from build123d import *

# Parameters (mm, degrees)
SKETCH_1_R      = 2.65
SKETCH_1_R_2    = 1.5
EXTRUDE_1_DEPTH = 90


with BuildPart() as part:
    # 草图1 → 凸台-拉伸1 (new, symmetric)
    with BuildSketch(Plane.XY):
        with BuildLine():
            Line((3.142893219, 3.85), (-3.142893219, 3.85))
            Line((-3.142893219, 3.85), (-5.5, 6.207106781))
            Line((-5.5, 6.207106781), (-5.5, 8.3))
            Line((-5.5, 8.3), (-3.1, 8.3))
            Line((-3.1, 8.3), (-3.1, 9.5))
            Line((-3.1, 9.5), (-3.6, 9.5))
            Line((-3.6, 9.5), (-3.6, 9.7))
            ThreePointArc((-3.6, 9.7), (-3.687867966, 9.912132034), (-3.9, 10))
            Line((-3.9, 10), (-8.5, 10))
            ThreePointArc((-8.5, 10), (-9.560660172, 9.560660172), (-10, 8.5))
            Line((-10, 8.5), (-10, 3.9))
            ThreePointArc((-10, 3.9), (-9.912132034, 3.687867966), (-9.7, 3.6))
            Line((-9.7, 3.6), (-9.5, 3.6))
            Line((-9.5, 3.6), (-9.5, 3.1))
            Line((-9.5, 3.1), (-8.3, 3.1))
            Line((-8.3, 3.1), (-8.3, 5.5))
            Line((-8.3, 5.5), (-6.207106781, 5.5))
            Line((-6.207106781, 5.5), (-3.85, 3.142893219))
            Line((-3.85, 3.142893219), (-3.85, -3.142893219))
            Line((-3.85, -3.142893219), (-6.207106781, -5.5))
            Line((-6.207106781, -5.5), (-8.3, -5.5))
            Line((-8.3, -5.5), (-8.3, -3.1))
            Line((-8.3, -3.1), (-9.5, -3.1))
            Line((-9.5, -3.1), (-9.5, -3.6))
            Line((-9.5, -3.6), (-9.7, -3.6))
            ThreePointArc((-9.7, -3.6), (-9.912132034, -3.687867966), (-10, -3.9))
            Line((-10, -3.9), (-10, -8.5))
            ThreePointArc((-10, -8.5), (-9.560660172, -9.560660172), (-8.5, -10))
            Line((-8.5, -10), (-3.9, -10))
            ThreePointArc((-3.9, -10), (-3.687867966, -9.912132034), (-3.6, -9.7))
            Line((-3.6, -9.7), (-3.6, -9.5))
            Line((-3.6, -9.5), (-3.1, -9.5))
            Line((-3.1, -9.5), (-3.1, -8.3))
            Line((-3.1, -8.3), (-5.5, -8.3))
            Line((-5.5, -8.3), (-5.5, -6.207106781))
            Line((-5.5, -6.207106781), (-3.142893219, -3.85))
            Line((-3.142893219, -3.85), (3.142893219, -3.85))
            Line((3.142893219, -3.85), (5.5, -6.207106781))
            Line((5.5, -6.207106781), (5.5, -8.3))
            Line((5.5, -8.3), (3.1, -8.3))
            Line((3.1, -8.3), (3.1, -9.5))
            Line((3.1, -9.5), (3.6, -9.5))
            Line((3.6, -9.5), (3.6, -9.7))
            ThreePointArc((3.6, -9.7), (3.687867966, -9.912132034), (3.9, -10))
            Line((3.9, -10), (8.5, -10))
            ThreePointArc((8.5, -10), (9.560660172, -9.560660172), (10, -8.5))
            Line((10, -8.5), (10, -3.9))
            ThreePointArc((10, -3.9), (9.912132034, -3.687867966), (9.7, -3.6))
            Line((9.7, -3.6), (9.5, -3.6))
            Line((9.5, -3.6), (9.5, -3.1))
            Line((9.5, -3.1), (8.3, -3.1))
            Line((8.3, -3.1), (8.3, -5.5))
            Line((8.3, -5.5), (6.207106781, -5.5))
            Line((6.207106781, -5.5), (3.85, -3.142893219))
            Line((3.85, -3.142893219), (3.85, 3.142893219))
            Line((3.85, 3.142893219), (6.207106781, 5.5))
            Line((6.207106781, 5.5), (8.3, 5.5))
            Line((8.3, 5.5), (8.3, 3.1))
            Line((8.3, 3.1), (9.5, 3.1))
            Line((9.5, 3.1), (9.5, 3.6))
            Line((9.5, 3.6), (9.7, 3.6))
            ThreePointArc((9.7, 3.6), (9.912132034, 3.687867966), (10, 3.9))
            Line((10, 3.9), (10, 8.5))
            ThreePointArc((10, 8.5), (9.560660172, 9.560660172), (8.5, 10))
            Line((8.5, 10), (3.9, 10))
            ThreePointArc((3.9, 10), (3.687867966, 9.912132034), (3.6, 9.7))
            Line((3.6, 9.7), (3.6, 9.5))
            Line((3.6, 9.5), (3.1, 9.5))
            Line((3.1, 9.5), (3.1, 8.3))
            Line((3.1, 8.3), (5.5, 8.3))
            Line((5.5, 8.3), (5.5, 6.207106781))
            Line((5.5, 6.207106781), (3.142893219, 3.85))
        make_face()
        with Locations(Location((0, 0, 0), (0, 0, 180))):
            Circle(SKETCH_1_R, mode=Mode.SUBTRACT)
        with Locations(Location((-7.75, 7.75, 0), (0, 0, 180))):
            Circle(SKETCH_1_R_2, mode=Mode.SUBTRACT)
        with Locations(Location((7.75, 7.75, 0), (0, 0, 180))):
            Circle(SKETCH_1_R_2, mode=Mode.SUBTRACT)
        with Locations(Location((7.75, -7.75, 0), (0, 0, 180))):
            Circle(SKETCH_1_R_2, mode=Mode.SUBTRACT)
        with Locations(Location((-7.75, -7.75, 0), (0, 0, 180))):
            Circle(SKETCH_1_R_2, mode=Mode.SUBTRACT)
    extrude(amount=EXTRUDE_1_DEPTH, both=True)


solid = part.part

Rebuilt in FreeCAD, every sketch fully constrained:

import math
import FreeCAD as App
import Part
import Sketcher

doc = App.newDocument("Part")
body = doc.addObject("PartDesign::Body", "Body")

sketch1 = body.newObject("Sketcher::SketchObject", "Sketch")
sketch1.AttachmentSupport = (doc.getObject("XY_Plane"), [""])
sketch1.MapMode = "FlatFace"
sketch1.addGeometry(Part.LineSegment(App.Vector(3.142893, 3.85, 0), App.Vector(-3.142893, 3.85, 0)), False)
sketch1.addGeometry(Part.LineSegment(App.Vector(-3.142893, 3.85, 0), App.Vector(-5.5, 6.207107, 0)), False)
sketch1.addGeometry(Part.LineSegment(App.Vector(-5.5, 6.207107, 0), App.Vector(-5.5, 8.3, 0)), False)
sketch1.addGeometry(Part.LineSegment(App.Vector(-5.5, 8.3, 0), App.Vector(-3.1, 8.3, 0)), False)
sketch1.addGeometry(Part.LineSegment(App.Vector(-3.1, 8.3, 0), App.Vector(-3.1, 9.5, 0)), False)
sketch1.addGeometry(Part.LineSegment(App.Vector(-3.1, 9.5, 0), App.Vector(-3.6, 9.5, 0)), False)
sketch1.addGeometry(Part.LineSegment(App.Vector(-3.6, 9.5, 0), App.Vector(-3.6, 9.7, 0)), False)
sketch1.addGeometry(Part.ArcOfCircle(Part.Circle(App.Vector(-3.9, 9.7, 0), App.Vector(0, 0, 1), 0.3), math.radians(0), math.radians(90)), False)
sketch1.addGeometry(Part.LineSegment(App.Vector(-3.9, 10, 0), App.Vector(-8.5, 10, 0)), False)
sketch1.addGeometry(Part.ArcOfCircle(Part.Circle(App.Vector(-8.5, 8.5, 0), App.Vector(0, 0, 1), 1.5), math.radians(90), math.radians(180)), False)
sketch1.addGeometry(Part.LineSegment(App.Vector(-10, 8.5, 0), App.Vector(-10, 3.9, 0)), False)
sketch1.addGeometry(Part.ArcOfCircle(Part.Circle(App.Vector(-9.7, 3.9, 0), App.Vector(0, 0, 1), 0.3), math.radians(-180), math.radians(-90)), False)
sketch1.addGeometry(Part.LineSegment(App.Vector(-9.7, 3.6, 0), App.Vector(-9.5, 3.6, 0)), False)
sketch1.addGeometry(Part.LineSegment(App.Vector(-9.5, 3.6, 0), App.Vector(-9.5, 3.1, 0)), False)
sketch1.addGeometry(Part.LineSegment(App.Vector(-9.5, 3.1, 0), App.Vector(-8.3, 3.1, 0)), False)
sketch1.addGeometry(Part.LineSegment(App.Vector(-8.3, 3.1, 0), App.Vector(-8.3, 5.5, 0)), False)
sketch1.addGeometry(Part.LineSegment(App.Vector(-8.3, 5.5, 0), App.Vector(-6.207107, 5.5, 0)), False)
sketch1.addGeometry(Part.LineSegment(App.Vector(-6.207107, 5.5, 0), App.Vector(-3.85, 3.142893, 0)), False)
sketch1.addGeometry(Part.LineSegment(App.Vector(-3.85, 3.142893, 0), App.Vector(-3.85, -3.142893, 0)), False)
sketch1.addGeometry(Part.LineSegment(App.Vector(-3.85, -3.142893, 0), App.Vector(-6.207107, -5.5, 0)), False)
sketch1.addGeometry(Part.LineSegment(App.Vector(-6.207107, -5.5, 0), App.Vector(-8.3, -5.5, 0)), False)
sketch1.addGeometry(Part.LineSegment(App.Vector(-8.3, -5.5, 0), App.Vector(-8.3, -3.1, 0)), False)
sketch1.addGeometry(Part.LineSegment(App.Vector(-8.3, -3.1, 0), App.Vector(-9.5, -3.1, 0)), False)
sketch1.addGeometry(Part.LineSegment(App.Vector(-9.5, -3.1, 0), App.Vector(-9.5, -3.6, 0)), False)
sketch1.addGeometry(Part.LineSegment(App.Vector(-9.5, -3.6, 0), App.Vector(-9.7, -3.6, 0)), False)
sketch1.addGeometry(Part.ArcOfCircle(Part.Circle(App.Vector(-9.7, -3.9, 0), App.Vector(0, 0, 1), 0.3), math.radians(90), math.radians(180)), False)
sketch1.addGeometry(Part.LineSegment(App.Vector(-10, -3.9, 0), App.Vector(-10, -8.5, 0)), False)
sketch1.addGeometry(Part.ArcOfCircle(Part.Circle(App.Vector(-8.5, -8.5, 0), App.Vector(0, 0, 1), 1.5), math.radians(180), math.radians(270)), False)
sketch1.addGeometry(Part.LineSegment(App.Vector(-8.5, -10, 0), App.Vector(-3.9, -10, 0)), False)
sketch1.addGeometry(Part.ArcOfCircle(Part.Circle(App.Vector(-3.9, -9.7, 0), App.Vector(0, 0, 1), 0.3), math.radians(-90), math.radians(0)), False)
sketch1.addGeometry(Part.LineSegment(App.Vector(-3.6, -9.7, 0), App.Vector(-3.6, -9.5, 0)), False)
sketch1.addGeometry(Part.LineSegment(App.Vector(-3.6, -9.5, 0), App.Vector(-3.1, -9.5, 0)), False)
sketch1.addGeometry(Part.LineSegment(App.Vector(-3.1, -9.5, 0), App.Vector(-3.1, -8.3, 0)), False)
sketch1.addGeometry(Part.LineSegment(App.Vector(-3.1, -8.3, 0), App.Vector(-5.5, -8.3, 0)), False)
sketch1.addGeometry(Part.LineSegment(App.Vector(-5.5, -8.3, 0), App.Vector(-5.5, -6.207107, 0)), False)
sketch1.addGeometry(Part.LineSegment(App.Vector(-5.5, -6.207107, 0), App.Vector(-3.142893, -3.85, 0)), False)
sketch1.addGeometry(Part.LineSegment(App.Vector(-3.142893, -3.85, 0), App.Vector(3.142893, -3.85, 0)), False)
sketch1.addGeometry(Part.LineSegment(App.Vector(3.142893, -3.85, 0), App.Vector(5.5, -6.207107, 0)), False)
sketch1.addGeometry(Part.LineSegment(App.Vector(5.5, -6.207107, 0), App.Vector(5.5, -8.3, 0)), False)
sketch1.addGeometry(Part.LineSegment(App.Vector(5.5, -8.3, 0), App.Vector(3.1, -8.3, 0)), False)
sketch1.addGeometry(Part.LineSegment(App.Vector(3.1, -8.3, 0), App.Vector(3.1, -9.5, 0)), False)
sketch1.addGeometry(Part.LineSegment(App.Vector(3.1, -9.5, 0), App.Vector(3.6, -9.5, 0)), False)
sketch1.addGeometry(Part.LineSegment(App.Vector(3.6, -9.5, 0), App.Vector(3.6, -9.7, 0)), False)
sketch1.addGeometry(Part.ArcOfCircle(Part.Circle(App.Vector(3.9, -9.7, 0), App.Vector(0, 0, 1), 0.3), math.radians(-180), math.radians(-90)), False)
sketch1.addGeometry(Part.LineSegment(App.Vector(3.9, -10, 0), App.Vector(8.5, -10, 0)), False)
sketch1.addGeometry(Part.ArcOfCircle(Part.Circle(App.Vector(8.5, -8.5, 0), App.Vector(0, 0, 1), 1.5), math.radians(-90), math.radians(0)), False)
sketch1.addGeometry(Part.LineSegment(App.Vector(10, -8.5, 0), App.Vector(10, -3.9, 0)), False)
sketch1.addGeometry(Part.ArcOfCircle(Part.Circle(App.Vector(9.7, -3.9, 0), App.Vector(0, 0, 1), 0.3), math.radians(0), math.radians(90)), False)
sketch1.addGeometry(Part.LineSegment(App.Vector(9.7, -3.6, 0), App.Vector(9.5, -3.6, 0)), False)
sketch1.addGeometry(Part.LineSegment(App.Vector(9.5, -3.6, 0), App.Vector(9.5, -3.1, 0)), False)
sketch1.addGeometry(Part.LineSegment(App.Vector(9.5, -3.1, 0), App.Vector(8.3, -3.1, 0)), False)
sketch1.addGeometry(Part.LineSegment(App.Vector(8.3, -3.1, 0), App.Vector(8.3, -5.5, 0)), False)
sketch1.addGeometry(Part.LineSegment(App.Vector(8.3, -5.5, 0), App.Vector(6.207107, -5.5, 0)), False)
sketch1.addGeometry(Part.LineSegment(App.Vector(6.207107, -5.5, 0), App.Vector(3.85, -3.142893, 0)), False)
sketch1.addGeometry(Part.LineSegment(App.Vector(3.85, -3.142893, 0), App.Vector(3.85, 3.142893, 0)), False)
sketch1.addGeometry(Part.LineSegment(App.Vector(3.85, 3.142893, 0), App.Vector(6.207107, 5.5, 0)), False)
sketch1.addGeometry(Part.LineSegment(App.Vector(6.207107, 5.5, 0), App.Vector(8.3, 5.5, 0)), False)
sketch1.addGeometry(Part.LineSegment(App.Vector(8.3, 5.5, 0), App.Vector(8.3, 3.1, 0)), False)
sketch1.addGeometry(Part.LineSegment(App.Vector(8.3, 3.1, 0), App.Vector(9.5, 3.1, 0)), False)
sketch1.addGeometry(Part.LineSegment(App.Vector(9.5, 3.1, 0), App.Vector(9.5, 3.6, 0)), False)
sketch1.addGeometry(Part.LineSegment(App.Vector(9.5, 3.6, 0), App.Vector(9.7, 3.6, 0)), False)
sketch1.addGeometry(Part.ArcOfCircle(Part.Circle(App.Vector(9.7, 3.9, 0), App.Vector(0, 0, 1), 0.3), math.radians(-90), math.radians(0)), False)
sketch1.addGeometry(Part.LineSegment(App.Vector(10, 3.9, 0), App.Vector(10, 8.5, 0)), False)
sketch1.addGeometry(Part.ArcOfCircle(Part.Circle(App.Vector(8.5, 8.5, 0), App.Vector(0, 0, 1), 1.5), math.radians(0), math.radians(90)), False)
sketch1.addGeometry(Part.LineSegment(App.Vector(8.5, 10, 0), App.Vector(3.9, 10, 0)), False)
sketch1.addGeometry(Part.ArcOfCircle(Part.Circle(App.Vector(3.9, 9.7, 0), App.Vector(0, 0, 1), 0.3), math.radians(90), math.radians(180)), False)
sketch1.addGeometry(Part.LineSegment(App.Vector(3.6, 9.7, 0), App.Vector(3.6, 9.5, 0)), False)
sketch1.addGeometry(Part.LineSegment(App.Vector(3.6, 9.5, 0), App.Vector(3.1, 9.5, 0)), False)
sketch1.addGeometry(Part.LineSegment(App.Vector(3.1, 9.5, 0), App.Vector(3.1, 8.3, 0)), False)
sketch1.addGeometry(Part.LineSegment(App.Vector(3.1, 8.3, 0), App.Vector(5.5, 8.3, 0)), False)
sketch1.addGeometry(Part.LineSegment(App.Vector(5.5, 8.3, 0), App.Vector(5.5, 6.207107, 0)), False)
sketch1.addGeometry(Part.LineSegment(App.Vector(5.5, 6.207107, 0), App.Vector(3.142893, 3.85, 0)), False)
sketch1.addGeometry(Part.Circle(App.Vector(-7.75, -7.75, 0), App.Vector(0, 0, 1), 1.5), False)
sketch1.addGeometry(Part.Circle(App.Vector(7.75, -7.75, 0), App.Vector(0, 0, 1), 1.5), False)
sketch1.addGeometry(Part.Circle(App.Vector(-7.75, 7.75, 0), App.Vector(0, 0, 1), 1.5), False)
sketch1.addGeometry(Part.Circle(App.Vector(0, 0, 0), App.Vector(0, 0, 1), 2.65), False)
sketch1.addGeometry(Part.Circle(App.Vector(7.75, 7.75, 0), App.Vector(0, 0, 1), 1.5), False)
sketch1.addConstraint(Sketcher.Constraint("Coincident", 0, 2, 1, 1))
sketch1.addConstraint(Sketcher.Constraint("Coincident", 1, 2, 2, 1))
sketch1.addConstraint(Sketcher.Constraint("Coincident", 2, 2, 3, 1))
sketch1.addConstraint(Sketcher.Constraint("Coincident", 3, 2, 4, 1))
sketch1.addConstraint(Sketcher.Constraint("Coincident", 4, 2, 5, 1))
sketch1.addConstraint(Sketcher.Constraint("Coincident", 5, 2, 6, 1))
sketch1.addConstraint(Sketcher.Constraint("Tangent", 6, 2, 7, 1))
sketch1.addConstraint(Sketcher.Constraint("Tangent", 7, 2, 8, 1))
sketch1.addConstraint(Sketcher.Constraint("Tangent", 8, 2, 9, 1))
sketch1.addConstraint(Sketcher.Constraint("Tangent", 9, 2, 10, 1))
sketch1.addConstraint(Sketcher.Constraint("Tangent", 10, 2, 11, 1))
sketch1.addConstraint(Sketcher.Constraint("Tangent", 11, 2, 12, 1))
sketch1.addConstraint(Sketcher.Constraint("Coincident", 12, 2, 13, 1))
sketch1.addConstraint(Sketcher.Constraint("Coincident", 13, 2, 14, 1))
sketch1.addConstraint(Sketcher.Constraint("Coincident", 14, 2, 15, 1))
sketch1.addConstraint(Sketcher.Constraint("Coincident", 15, 2, 16, 1))
sketch1.addConstraint(Sketcher.Constraint("Coincident", 16, 2, 17, 1))
sketch1.addConstraint(Sketcher.Constraint("Coincident", 17, 2, 18, 1))
sketch1.addConstraint(Sketcher.Constraint("Coincident", 18, 2, 19, 1))
sketch1.addConstraint(Sketcher.Constraint("Coincident", 19, 2, 20, 1))
sketch1.addConstraint(Sketcher.Constraint("Coincident", 20, 2, 21, 1))
sketch1.addConstraint(Sketcher.Constraint("Coincident", 21, 2, 22, 1))
sketch1.addConstraint(Sketcher.Constraint("Coincident", 22, 2, 23, 1))
sketch1.addConstraint(Sketcher.Constraint("Coincident", 23, 2, 24, 1))
sketch1.addConstraint(Sketcher.Constraint("Tangent", 24, 2, 25, 1))
sketch1.addConstraint(Sketcher.Constraint("Tangent", 25, 2, 26, 1))
sketch1.addConstraint(Sketcher.Constraint("Tangent", 26, 2, 27, 1))
sketch1.addConstraint(Sketcher.Constraint("Tangent", 27, 2, 28, 1))
sketch1.addConstraint(Sketcher.Constraint("Tangent", 28, 2, 29, 1))
sketch1.addConstraint(Sketcher.Constraint("Tangent", 29, 2, 30, 1))
sketch1.addConstraint(Sketcher.Constraint("Coincident", 30, 2, 31, 1))
sketch1.addConstraint(Sketcher.Constraint("Coincident", 31, 2, 32, 1))
sketch1.addConstraint(Sketcher.Constraint("Coincident", 32, 2, 33, 1))
sketch1.addConstraint(Sketcher.Constraint("Coincident", 33, 2, 34, 1))
sketch1.addConstraint(Sketcher.Constraint("Coincident", 34, 2, 35, 1))
sketch1.addConstraint(Sketcher.Constraint("Coincident", 35, 2, 36, 1))
sketch1.addConstraint(Sketcher.Constraint("Coincident", 36, 2, 37, 1))
sketch1.addConstraint(Sketcher.Constraint("Coincident", 37, 2, 38, 1))
sketch1.addConstraint(Sketcher.Constraint("Coincident", 38, 2, 39, 1))
sketch1.addConstraint(Sketcher.Constraint("Coincident", 39, 2, 40, 1))
sketch1.addConstraint(Sketcher.Constraint("Coincident", 40, 2, 41, 1))
sketch1.addConstraint(Sketcher.Constraint("Coincident", 41, 2, 42, 1))
sketch1.addConstraint(Sketcher.Constraint("Tangent", 42, 2, 43, 1))
sketch1.addConstraint(Sketcher.Constraint("Tangent", 43, 2, 44, 1))
sketch1.addConstraint(Sketcher.Constraint("Tangent", 44, 2, 45, 1))
sketch1.addConstraint(Sketcher.Constraint("Tangent", 45, 2, 46, 1))
sketch1.addConstraint(Sketcher.Constraint("Tangent", 46, 2, 47, 1))
sketch1.addConstraint(Sketcher.Constraint("Tangent", 47, 2, 48, 1))
sketch1.addConstraint(Sketcher.Constraint("Coincident", 48, 2, 49, 1))
sketch1.addConstraint(Sketcher.Constraint("Coincident", 49, 2, 50, 1))
sketch1.addConstraint(Sketcher.Constraint("Coincident", 50, 2, 51, 1))
sketch1.addConstraint(Sketcher.Constraint("Coincident", 51, 2, 52, 1))
sketch1.addConstraint(Sketcher.Constraint("Coincident", 52, 2, 53, 1))
sketch1.addConstraint(Sketcher.Constraint("Coincident", 53, 2, 54, 1))
sketch1.addConstraint(Sketcher.Constraint("Coincident", 54, 2, 55, 1))
sketch1.addConstraint(Sketcher.Constraint("Coincident", 55, 2, 56, 1))
sketch1.addConstraint(Sketcher.Constraint("Coincident", 56, 2, 57, 1))
sketch1.addConstraint(Sketcher.Constraint("Coincident", 57, 2, 58, 1))
sketch1.addConstraint(Sketcher.Constraint("Coincident", 58, 2, 59, 1))
sketch1.addConstraint(Sketcher.Constraint("Coincident", 59, 2, 60, 1))
sketch1.addConstraint(Sketcher.Constraint("Tangent", 60, 2, 61, 1))
sketch1.addConstraint(Sketcher.Constraint("Tangent", 61, 2, 62, 1))
sketch1.addConstraint(Sketcher.Constraint("Tangent", 62, 2, 63, 1))
sketch1.addConstraint(Sketcher.Constraint("Tangent", 63, 2, 64, 1))
sketch1.addConstraint(Sketcher.Constraint("Tangent", 64, 2, 65, 1))
sketch1.addConstraint(Sketcher.Constraint("Tangent", 65, 2, 66, 1))
sketch1.addConstraint(Sketcher.Constraint("Coincident", 66, 2, 67, 1))
sketch1.addConstraint(Sketcher.Constraint("Coincident", 67, 2, 68, 1))
sketch1.addConstraint(Sketcher.Constraint("Coincident", 68, 2, 69, 1))
sketch1.addConstraint(Sketcher.Constraint("Coincident", 69, 2, 70, 1))
sketch1.addConstraint(Sketcher.Constraint("Coincident", 70, 2, 71, 1))
sketch1.addConstraint(Sketcher.Constraint("Coincident", 71, 2, 0, 1))
sketch1.addConstraint(Sketcher.Constraint("Horizontal", 0))
sketch1.addConstraint(Sketcher.Constraint("Vertical", 2))
sketch1.addConstraint(Sketcher.Constraint("Horizontal", 3))
sketch1.addConstraint(Sketcher.Constraint("Vertical", 4))
sketch1.addConstraint(Sketcher.Constraint("Horizontal", 5))
sketch1.addConstraint(Sketcher.Constraint("Vertical", 6))
sketch1.addConstraint(Sketcher.Constraint("Horizontal", 8))
sketch1.addConstraint(Sketcher.Constraint("Vertical", 10))
sketch1.addConstraint(Sketcher.Constraint("Horizontal", 12))
sketch1.addConstraint(Sketcher.Constraint("Vertical", 13))
sketch1.addConstraint(Sketcher.Constraint("Horizontal", 14))
sketch1.addConstraint(Sketcher.Constraint("Vertical", 15))
sketch1.addConstraint(Sketcher.Constraint("Horizontal", 16))
sketch1.addConstraint(Sketcher.Constraint("Vertical", 18))
sketch1.addConstraint(Sketcher.Constraint("Horizontal", 20))
sketch1.addConstraint(Sketcher.Constraint("Vertical", 21))
sketch1.addConstraint(Sketcher.Constraint("Horizontal", 22))
sketch1.addConstraint(Sketcher.Constraint("Vertical", 23))
sketch1.addConstraint(Sketcher.Constraint("Horizontal", 24))
sketch1.addConstraint(Sketcher.Constraint("Vertical", 26))
sketch1.addConstraint(Sketcher.Constraint("Horizontal", 28))
sketch1.addConstraint(Sketcher.Constraint("Vertical", 30))
sketch1.addConstraint(Sketcher.Constraint("Horizontal", 31))
sketch1.addConstraint(Sketcher.Constraint("Vertical", 32))
sketch1.addConstraint(Sketcher.Constraint("Horizontal", 33))
sketch1.addConstraint(Sketcher.Constraint("Vertical", 34))
sketch1.addConstraint(Sketcher.Constraint("Horizontal", 36))
sketch1.addConstraint(Sketcher.Constraint("Vertical", 38))
sketch1.addConstraint(Sketcher.Constraint("Horizontal", 39))
sketch1.addConstraint(Sketcher.Constraint("Vertical", 40))
sketch1.addConstraint(Sketcher.Constraint("Horizontal", 41))
sketch1.addConstraint(Sketcher.Constraint("Vertical", 42))
sketch1.addConstraint(Sketcher.Constraint("Horizontal", 44))
sketch1.addConstraint(Sketcher.Constraint("Vertical", 46))
sketch1.addConstraint(Sketcher.Constraint("Horizontal", 48))
sketch1.addConstraint(Sketcher.Constraint("Vertical", 49))
sketch1.addConstraint(Sketcher.Constraint("Horizontal", 50))
sketch1.addConstraint(Sketcher.Constraint("Vertical", 51))
sketch1.addConstraint(Sketcher.Constraint("Horizontal", 52))
sketch1.addConstraint(Sketcher.Constraint("Vertical", 54))
sketch1.addConstraint(Sketcher.Constraint("Horizontal", 56))
sketch1.addConstraint(Sketcher.Constraint("Vertical", 57))
sketch1.addConstraint(Sketcher.Constraint("Horizontal", 58))
sketch1.addConstraint(Sketcher.Constraint("Vertical", 59))
sketch1.addConstraint(Sketcher.Constraint("Horizontal", 60))
sketch1.addConstraint(Sketcher.Constraint("Vertical", 62))
sketch1.addConstraint(Sketcher.Constraint("Horizontal", 64))
sketch1.addConstraint(Sketcher.Constraint("Vertical", 66))
sketch1.addConstraint(Sketcher.Constraint("Horizontal", 67))
sketch1.addConstraint(Sketcher.Constraint("Vertical", 68))
sketch1.addConstraint(Sketcher.Constraint("Horizontal", 69))
sketch1.addConstraint(Sketcher.Constraint("Vertical", 70))
sketch1.addConstraint(Sketcher.Constraint("Coincident", 75, 3, -1, 1))
sketch1.addConstraint(Sketcher.Constraint("Equal", 7, 11))
sketch1.addConstraint(Sketcher.Constraint("Equal", 11, 25))
sketch1.addConstraint(Sketcher.Constraint("Equal", 9, 27))
sketch1.addConstraint(Sketcher.Constraint("Equal", 25, 29))
sketch1.addConstraint(Sketcher.Constraint("Equal", 29, 43))
sketch1.addConstraint(Sketcher.Constraint("Equal", 27, 45))
sketch1.addConstraint(Sketcher.Constraint("Equal", 43, 47))
sketch1.addConstraint(Sketcher.Constraint("Equal", 47, 61))
sketch1.addConstraint(Sketcher.Constraint("Equal", 45, 63))
sketch1.addConstraint(Sketcher.Constraint("Equal", 61, 65))
sketch1.addConstraint(Sketcher.Constraint("Equal", 63, 72))
sketch1.addConstraint(Sketcher.Constraint("Equal", 72, 73))
sketch1.addConstraint(Sketcher.Constraint("Equal", 73, 74))
sketch1.addConstraint(Sketcher.Constraint("Equal", 74, 76))
sketch1.addConstraint(Sketcher.Constraint("Symmetric", 7, 3, 43, 3, -1, 1))
sketch1.addConstraint(Sketcher.Constraint("Symmetric", 11, 3, 47, 3, -1, 1))
sketch1.addConstraint(Sketcher.Constraint("Symmetric", 25, 3, 61, 3, -1, 1))
sketch1.addConstraint(Sketcher.Constraint("Symmetric", 29, 3, 65, 3, -1, 1))
sketch1.addConstraint(Sketcher.Constraint("Symmetric", 73, 3, 74, 3, -1, 1))
sketch1.addConstraint(Sketcher.Constraint("Symmetric", 72, 3, 76, 3, -1, 1))
sketch1.addConstraint(Sketcher.Constraint("Symmetric", 0, 2, 36, 2, -1, 1))
sketch1.addConstraint(Sketcher.Constraint("Symmetric", 1, 2, 37, 2, -1, 1))
sketch1.addConstraint(Sketcher.Constraint("Symmetric", 3, 2, 39, 2, -1, 1))
sketch1.addConstraint(Sketcher.Constraint("Symmetric", 13, 2, 49, 2, -1, 1))
sketch1.addConstraint(Sketcher.Constraint("Symmetric", 15, 2, 51, 2, -1, 1))
sketch1.addConstraint(Sketcher.Constraint("Symmetric", 17, 2, 53, 2, -1, 1))
sketch1.addConstraint(Sketcher.Constraint("Symmetric", 19, 2, 55, 2, -1, 1))
sketch1.addConstraint(Sketcher.Constraint("Symmetric", 21, 2, 57, 2, -1, 1))
sketch1.addConstraint(Sketcher.Constraint("Symmetric", 31, 2, 67, 2, -1, 1))
sketch1.addConstraint(Sketcher.Constraint("Symmetric", 33, 2, 69, 2, -1, 1))
sketch1.addConstraint(Sketcher.Constraint("Symmetric", 29, 3, 43, 3, -2))
sketch1.addConstraint(Sketcher.Constraint("Symmetric", 25, 3, 47, 3, -2))
sketch1.addConstraint(Sketcher.Constraint("Symmetric", 72, 3, 73, 3, -2))
sketch1.addConstraint(Sketcher.Constraint("Symmetric", 34, 2, 37, 2, -2))
sketch1.addConstraint(Sketcher.Constraint("Symmetric", 32, 2, 39, 2, -2))
sketch1.addConstraint(Sketcher.Constraint("Symmetric", 22, 2, 49, 2, -2))
sketch1.addConstraint(Sketcher.Constraint("Symmetric", 20, 2, 51, 2, -2))
sketch1.addConstraint(Sketcher.Constraint("Parallel", 1, 17))
sketch1.addConstraint(Sketcher.Constraint("Perpendicular", 17, 19))
sketch1.addConstraint(Sketcher.Constraint("Parallel", 19, 35))
sketch1.addConstraint(Sketcher.Constraint("Parallel", 37, 53))
sketch1.addConstraint(Sketcher.Constraint("Perpendicular", 53, 55))
sketch1.addConstraint(Sketcher.Constraint("Parallel", 55, 71))
sketch1.addConstraint(Sketcher.Constraint("Horizontal", 31, 2, 40, 2))
sketch1.addConstraint(Sketcher.Constraint("Horizontal", 18, 2, 53, 2))
sketch1.addConstraint(Sketcher.Constraint("Horizontal", 5, 2, 66, 2))
sketch1.addConstraint(Sketcher.Constraint("Horizontal", 1, 2, 70, 2))
sketch1.addConstraint(Sketcher.Constraint("Vertical", 16, 2, 19, 2))
sketch1.addConstraint(Sketcher.Constraint("Vertical", 49, 2, 58, 2))
sketch1.addConstraint(Sketcher.Constraint("Equal", 56, 2))
sketch1.addConstraint(Sketcher.Constraint("Equal", 58, 4))
sketch1.addConstraint(Sketcher.Constraint("Equal", 60, 6))
sketch1.addConstraint(Sketcher.Constraint("Equal", 64, 10))
sketch1.addConstraint(Sketcher.Constraint("Equal", 67, 13))
sketch1.addConstraint(Sketcher.Constraint("Equal", 69, 15))
sketch1.addConstraint(Sketcher.Constraint("Equal", 36, 18))
sketch1.addConstraint(Sketcher.Constraint("Equal", 1, 17))
sketch1.addConstraint(Sketcher.Constraint("Diameter", 72, 3.0))
sketch1.addConstraint(Sketcher.Constraint("Diameter", 75, 5.3))
sketch1.addConstraint(Sketcher.Constraint("Radius", 7, 0.3))
sketch1.addConstraint(Sketcher.Constraint("DistanceX", 3, 1, 3, 2, 2.4))
sketch1.addConstraint(Sketcher.Constraint("DistanceX", 5, 2, 5, 1, 0.5))
sketch1.addConstraint(Sketcher.Constraint("DistanceX", 8, 2, 8, 1, 4.6))
sketch1.addConstraint(Sketcher.Constraint("DistanceX", 12, 1, 12, 2, 0.2))
sketch1.addConstraint(Sketcher.Constraint("DistanceX", 14, 1, 14, 2, 1.2))
sketch1.addConstraint(Sketcher.Constraint("DistanceY", -1, 1, 7, 2, 10.0))
sketch1.addConstraint(Sketcher.Constraint("DistanceX", 72, 3, -1, 1, 7.75))
sketch1.addConstraint(Sketcher.Constraint("DistanceY", 72, 3, -1, 1, 7.75))
sketch1.addConstraint(Sketcher.Constraint("DistanceY", -1, 1, 0, 2, 3.85))
sketch1.addConstraint(Sketcher.Constraint("DistanceX", 0, 2, 0, 1, 6.285786))
pad1 = body.newObject("PartDesign::Pad", "Pad")
pad1.Profile = sketch1
pad1.Length = 180
pad1.Midplane = True

doc.recompute()
